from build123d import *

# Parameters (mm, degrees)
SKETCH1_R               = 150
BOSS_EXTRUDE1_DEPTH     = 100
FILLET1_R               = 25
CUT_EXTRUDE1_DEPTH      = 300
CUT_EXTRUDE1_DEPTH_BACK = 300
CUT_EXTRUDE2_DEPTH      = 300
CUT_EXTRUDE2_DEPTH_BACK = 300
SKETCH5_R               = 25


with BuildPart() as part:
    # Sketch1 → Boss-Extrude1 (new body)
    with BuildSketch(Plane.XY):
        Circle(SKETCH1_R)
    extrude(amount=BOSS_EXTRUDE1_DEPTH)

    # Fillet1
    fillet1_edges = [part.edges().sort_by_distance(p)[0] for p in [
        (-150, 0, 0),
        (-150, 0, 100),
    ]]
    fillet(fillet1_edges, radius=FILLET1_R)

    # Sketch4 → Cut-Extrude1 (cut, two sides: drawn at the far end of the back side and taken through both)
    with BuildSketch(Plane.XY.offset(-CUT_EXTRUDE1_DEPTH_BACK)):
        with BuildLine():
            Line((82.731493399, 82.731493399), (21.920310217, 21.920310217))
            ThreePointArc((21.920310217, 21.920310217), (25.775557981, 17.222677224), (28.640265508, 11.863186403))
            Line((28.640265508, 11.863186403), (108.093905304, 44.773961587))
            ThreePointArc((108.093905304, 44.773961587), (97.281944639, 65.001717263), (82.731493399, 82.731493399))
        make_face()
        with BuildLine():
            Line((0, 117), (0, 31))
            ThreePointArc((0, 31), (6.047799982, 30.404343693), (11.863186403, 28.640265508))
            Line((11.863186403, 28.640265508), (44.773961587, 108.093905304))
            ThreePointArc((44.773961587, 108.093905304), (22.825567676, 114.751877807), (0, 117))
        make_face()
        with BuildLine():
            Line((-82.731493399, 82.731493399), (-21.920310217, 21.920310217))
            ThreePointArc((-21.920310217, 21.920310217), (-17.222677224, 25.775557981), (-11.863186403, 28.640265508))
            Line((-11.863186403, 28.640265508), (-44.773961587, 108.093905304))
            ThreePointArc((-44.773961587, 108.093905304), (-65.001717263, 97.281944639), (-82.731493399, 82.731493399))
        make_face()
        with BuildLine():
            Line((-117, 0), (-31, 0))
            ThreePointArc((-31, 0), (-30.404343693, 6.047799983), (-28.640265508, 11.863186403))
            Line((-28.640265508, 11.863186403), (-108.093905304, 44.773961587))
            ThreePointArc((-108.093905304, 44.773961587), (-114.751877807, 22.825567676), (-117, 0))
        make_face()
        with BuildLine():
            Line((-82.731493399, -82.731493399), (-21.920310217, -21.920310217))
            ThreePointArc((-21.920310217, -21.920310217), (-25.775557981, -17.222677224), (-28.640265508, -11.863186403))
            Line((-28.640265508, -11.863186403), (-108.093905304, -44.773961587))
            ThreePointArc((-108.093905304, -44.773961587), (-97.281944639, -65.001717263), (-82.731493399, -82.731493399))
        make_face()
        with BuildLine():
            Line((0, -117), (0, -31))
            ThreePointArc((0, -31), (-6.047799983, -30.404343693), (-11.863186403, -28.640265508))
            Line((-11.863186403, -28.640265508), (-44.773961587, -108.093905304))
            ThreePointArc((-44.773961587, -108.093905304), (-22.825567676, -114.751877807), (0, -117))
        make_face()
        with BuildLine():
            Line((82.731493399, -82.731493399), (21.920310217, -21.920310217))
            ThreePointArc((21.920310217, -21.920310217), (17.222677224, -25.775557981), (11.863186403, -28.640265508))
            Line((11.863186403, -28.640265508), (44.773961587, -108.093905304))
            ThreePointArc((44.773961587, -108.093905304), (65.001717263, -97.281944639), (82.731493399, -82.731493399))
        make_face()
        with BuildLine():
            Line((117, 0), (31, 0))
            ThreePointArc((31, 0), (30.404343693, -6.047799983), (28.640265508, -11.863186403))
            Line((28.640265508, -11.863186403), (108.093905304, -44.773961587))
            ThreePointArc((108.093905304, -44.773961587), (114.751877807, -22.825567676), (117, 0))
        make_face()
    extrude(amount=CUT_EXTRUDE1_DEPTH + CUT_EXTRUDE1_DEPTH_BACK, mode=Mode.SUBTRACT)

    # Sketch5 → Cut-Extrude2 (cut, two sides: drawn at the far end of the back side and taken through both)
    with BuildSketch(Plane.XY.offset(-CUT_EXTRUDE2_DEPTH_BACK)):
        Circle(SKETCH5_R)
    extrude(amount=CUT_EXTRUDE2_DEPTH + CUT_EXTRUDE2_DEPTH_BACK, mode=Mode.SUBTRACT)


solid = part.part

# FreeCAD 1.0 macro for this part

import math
import FreeCAD as App
import Part
import Sketcher
from FreeCAD import Vector
Q = App.Units.Quantity


def edges_at(feature, points):
    """Names of the edges that pass closest to the given points."""
    edges = feature.Shape.Edges
    near = lambda p: min(range(len(edges)), key=lambda i: edges[i].distToShape(Part.Vertex(*p))[0])
    return sorted({f"Edge{near(p) + 1}" for p in points})

doc = App.newDocument("Part")
body = doc.addObject("PartDesign::Body", "Body")

# Sketch on XY plane
sketch1 = body.newObject("Sketcher::SketchObject", "Sketch")
sketch1.AttachmentSupport = (doc.getObject("XY_Plane"), [""])
sketch1.MapMode = "FlatFace"
sketch1.addGeometry(Part.Circle(Vector(0, 0, 0), Vector(0, 0, 1), 150), False)
sketch1.addConstraint([
    Sketcher.Constraint("Coincident", 0, 3, -1, 1),
    Sketcher.Constraint("Diameter", 0, 300.0),
])
pad1 = body.newObject("PartDesign::Pad", "Pad")
pad1.Profile = sketch1
pad1.Length = 100
doc.recompute()

fillet = body.newObject("PartDesign::Fillet", "Fillet")
fillet.Base = (pad1, edges_at(pad1, [(-150, 0, 0), (-150, 0, 100)]))
fillet.Radius = 25

# Sketch on XY plane
sketch2 = body.newObject("Sketcher::SketchObject", "Sketch001")
sketch2.AttachmentSupport = (doc.getObject("XY_Plane"), [""])
sketch2.MapMode = "FlatFace"
sketch2.addGeometry([
    Part.LineSegment(Vector(82.731493, 82.731493, 0), Vector(21.92031, 21.92031, 0)),  # 0
    Part.ArcOfCircle(Part.Circle(Vector(0, 0, 0), Vector(0, 0, 1), 31), math.radians(22.5), math.radians(45)),  # 1
    Part.LineSegment(Vector(28.640266, 11.863186, 0), Vector(108.093905, 44.773962, 0)),  # 2
    Part.ArcOfCircle(Part.Circle(Vector(0, 0, 0), Vector(0, 0, 1), 117), math.radians(22.5), math.radians(45)),  # 3
    Part.LineSegment(Vector(0, 117, 0), Vector(0, 31, 0)),  # 4
    Part.ArcOfCircle(Part.Circle(Vector(0, 0, 0), Vector(0, 0, 1), 31), math.radians(67.5), math.radians(90)),  # 5
    Part.LineSegment(Vector(11.863186, 28.640266, 0), Vector(44.773962, 108.093905, 0)),  # 6
    Part.ArcOfCircle(Part.Circle(Vector(0, 0, 0), Vector(0, 0, 1), 117), math.radians(67.5), math.radians(90)),  # 7
    Part.LineSegment(Vector(-82.731493, 82.731493, 0), Vector(-21.92031, 21.92031, 0)),  # 8
    Part.ArcOfCircle(Part.Circle(Vector(0, 0, 0), Vector(0, 0, 1), 31), math.radians(112.5), math.radians(135)),  # 9
    Part.LineSegment(Vector(-11.863186, 28.640266, 0), Vector(-44.773962, 108.093905, 0)),  # 10
    Part.ArcOfCircle(Part.Circle(Vector(0, 0, 0), Vector(0, 0, 1), 117), math.radians(112.5), math.radians(135)),  # 11
    Part.LineSegment(Vector(-117, 0, 0), Vector(-31, 0, 0)),  # 12
    Part.ArcOfCircle(Part.Circle(Vector(0, 0, 0), Vector(0, 0, 1), 31), math.radians(157.5), math.radians(180)),  # 13
    Part.LineSegment(Vector(-28.640266, 11.863186, 0), Vector(-108.093905, 44.773962, 0)),  # 14
    Part.ArcOfCircle(Part.Circle(Vector(0, 0, 0), Vector(0, 0, 1), 117), math.radians(157.5), math.radians(180)),  # 15
    Part.LineSegment(Vector(-82.731493, -82.731493, 0), Vector(-21.92031, -21.92031, 0)),  # 16
    Part.ArcOfCircle(Part.Circle(Vector(0, 0, 0), Vector(0, 0, 1), 31), math.radians(-157.5), math.radians(-135)),  # 17
    Part.LineSegment(Vector(-28.640266, -11.863186, 0), Vector(-108.093905, -44.773962, 0)),  # 18
    Part.ArcOfCircle(Part.Circle(Vector(0, 0, 0), Vector(0, 0, 1), 117), math.radians(-157.5), math.radians(-135)),  # 19
    Part.LineSegment(Vector(0, -117, 0), Vector(0, -31, 0)),  # 20
    Part.ArcOfCircle(Part.Circle(Vector(0, 0, 0), Vector(0, 0, 1), 31), math.radians(-112.5), math.radians(-90)),  # 21
    Part.LineSegment(Vector(-11.863186, -28.640266, 0), Vector(-44.773962, -108.093905, 0)),  # 22
    Part.ArcOfCircle(Part.Circle(Vector(0, 0, 0), Vector(0, 0, 1), 117), math.radians(-112.5), math.radians(-90)),  # 23
    Part.LineSegment(Vector(82.731493, -82.731493, 0), Vector(21.92031, -21.92031, 0)),  # 24
    Part.ArcOfCircle(Part.Circle(Vector(0, 0, 0), Vector(0, 0, 1), 31), math.radians(-67.5), math.radians(-45)),  # 25
    Part.LineSegment(Vector(11.863186, -28.640266, 0), Vector(44.773962, -108.093905, 0)),  # 26
    Part.ArcOfCircle(Part.Circle(Vector(0, 0, 0), Vector(0, 0, 1), 117), math.radians(-67.5), math.radians(-45)),  # 27
    Part.LineSegment(Vector(117, 0, 0), Vector(31, 0, 0)),  # 28
    Part.ArcOfCircle(Part.Circle(Vector(0, 0, 0), Vector(0, 0, 1), 31), math.radians(-22.5), math.radians(0)),  # 29
    Part.LineSegment(Vector(28.640266, -11.863186, 0), Vector(108.093905, -44.773962, 0)),  # 30
    Part.ArcOfCircle(Part.Circle(Vector(0, 0, 0), Vector(0, 0, 1), 117), math.radians(-22.5), math.radians(0)),  # 31
], False)
sketch2.addConstraint([
    Sketcher.Constraint("Coincident", 0, 2, 1, 2),
    Sketcher.Constraint("Coincident", 1, 1, 2, 1),
    Sketcher.Constraint("Coincident", 2, 2, 3, 1),
    Sketcher.Constraint("Coincident", 3, 2, 0, 1),
    Sketcher.Constraint("Coincident", 4, 2, 5, 2),
    Sketcher.Constraint("Coincident", 5, 1, 6, 1),
    Sketcher.Constraint("Coincident", 6, 2, 7, 1),
    Sketcher.Constraint("Coincident", 7, 2, 4, 1),
    Sketcher.Constraint("Coincident", 8, 2, 9, 2),
    Sketcher.Constraint("Coincident", 9, 1, 10, 1),
    Sketcher.Constraint("Coincident", 10, 2, 11, 1),
    Sketcher.Constraint("Coincident", 11, 2, 8, 1),
    Sketcher.Constraint("Coincident", 12, 2, 13, 2),
    Sketcher.Constraint("Coincident", 13, 1, 14, 1),
    Sketcher.Constraint("Coincident", 14, 2, 15, 1),
    Sketcher.Constraint("Coincident", 15, 2, 12, 1),
    Sketcher.Constraint("Coincident", 16, 2, 17, 2),
    Sketcher.Constraint("Coincident", 17, 1, 18, 1),
    Sketcher.Constraint("Coincident", 18, 2, 19, 1),
    Sketcher.Constraint("Coincident", 19, 2, 16, 1),
    Sketcher.Constraint("Coincident", 20, 2, 21, 2),
    Sketcher.Constraint("Coincident", 21, 1, 22, 1),
    Sketcher.Constraint("Coincident", 22, 2, 23, 1),
    Sketcher.Constraint("Coincident", 23, 2, 20, 1),
    Sketcher.Constraint("Coincident", 24, 2, 25, 2),
    Sketcher.Constraint("Coincident", 25, 1, 26, 1),
    Sketcher.Constraint("Coincident", 26, 2, 27, 1),
    Sketcher.Constraint("Coincident", 27, 2, 24, 1),
    Sketcher.Constraint("Coincident", 28, 2, 29, 2),
    Sketcher.Constraint("Coincident", 29, 1, 30, 1),
    Sketcher.Constraint("Coincident", 30, 2, 31, 1),
    Sketcher.Constraint("Coincident", 31, 2, 28, 1),
    Sketcher.Constraint("Vertical", 4),
    Sketcher.Constraint("Horizontal", 12),
    Sketcher.Constraint("Vertical", 20),
    Sketcher.Constraint("Horizontal", 28),
    Sketcher.Constraint("Coincident", 1, 3, -1, 1),
    Sketcher.Constraint("Coincident", 3, 3, -1, 1),
    Sketcher.Constraint("Coincident", 5, 3, -1, 1),
    Sketcher.Constraint("Coincident", 7, 3, -1, 1),
    Sketcher.Constraint("Coincident", 9, 3, -1, 1),
    Sketcher.Constraint("Coincident", 11, 3, -1, 1),
    Sketcher.Constraint("Coincident", 13, 3, -1, 1),
    Sketcher.Constraint("Coincident", 15, 3, -1, 1),
    Sketcher.Constraint("Coincident", 17, 3, -1, 1),
    Sketcher.Constraint("Coincident", 19, 3, -1, 1),
    Sketcher.Constraint("Coincident", 21, 3, -1, 1),
    Sketcher.Constraint("Coincident", 23, 3, -1, 1),
    Sketcher.Constraint("Coincident", 25, 3, -1, 1),
    Sketcher.Constraint("Coincident", 27, 3, -1, 1),
    Sketcher.Constraint("Coincident", 29, 3, -1, 1),
    Sketcher.Constraint("Coincident", 31, 3, -1, 1),
    Sketcher.Constraint("Equal", 1, 5),
    Sketcher.Constraint("Equal", 3, 7),
    Sketcher.Constraint("Equal", 5, 9),
    Sketcher.Constraint("Equal", 7, 11),
    Sketcher.Constraint("Equal", 9, 13),
    Sketcher.Constraint("Equal", 11, 15),
    Sketcher.Constraint("Equal", 13, 17),
    Sketcher.Constraint("Equal", 15, 19),
    Sketcher.Constraint("Equal", 17, 21),
    Sketcher.Constraint("Equal", 19, 23),
    Sketcher.Constraint("Equal", 21, 25),
    Sketcher.Constraint("Equal", 23, 27),
    Sketcher.Constraint("Equal", 25, 29),
    Sketcher.Constraint("Equal", 27, 31),
    Sketcher.Constraint("PointOnObject", 4, 2, -2),
    Sketcher.Constraint("PointOnObject", 12, 2, -1),
    Sketcher.Constraint("PointOnObject", 20, 2, -2),
    Sketcher.Constraint("PointOnObject", 28, 2, -1),
    Sketcher.Constraint("Perpendicular", 0, 8),
    Sketcher.Constraint("Perpendicular", 2, 10),
    Sketcher.Constraint("Perpendicular", 6, 14),
    Sketcher.Constraint("Perpendicular", 8, 16),
    Sketcher.Constraint("Perpendicular", 10, 18),
    Sketcher.Constraint("Perpendicular", 14, 22),
    Sketcher.Constraint("Perpendicular", 16, 24),
    Sketcher.Constraint("Perpendicular", 18, 26),
    Sketcher.Constraint("Perpendicular", 22, 30),
    Sketcher.Constraint("Horizontal", 0, 2, 8, 2),
    Sketcher.Constraint("Horizontal", 5, 1, 9, 1),
    Sketcher.Constraint("Horizontal", 6, 2, 10, 2),
    Sketcher.Constraint("Horizontal", 3, 2, 11, 2),
    Sketcher.Constraint("Horizontal", 1, 1, 13, 1),
    Sketcher.Constraint("Horizontal", 16, 2, 24, 2),
    Sketcher.Constraint("Horizontal", 21, 1, 25, 1),
    Sketcher.Constraint("Horizontal", 17, 1, 29, 1),
    Sketcher.Constraint("Vertical", 8, 2, 16, 2),
    Sketcher.Constraint("Vertical", 13, 1, 17, 1),
    Sketcher.Constraint("Vertical", 9, 1, 21, 1),
    Sketcher.Constraint("Radius", 1, 31.0),
    Sketcher.Constraint("Radius", 3, 117.0),
    Sketcher.Constraint("Angle", 2, Q("22.5 deg")),
    Sketcher.Constraint("DistanceX", -1, 1, 0, 2, 21.92031),
    Sketcher.Constraint("DistanceY", -1, 1, 2, 2, 44.773962),
    Sketcher.Constraint("DistanceX", -1, 1, 6, 2, 44.773962),
])
pocket1 = body.newObject("PartDesign::Pocket", "Pocket")
pocket1.Profile = sketch2
pocket1.Type = "ThroughAll"
pocket1.Midplane = True

# Sketch on XY plane
sketch3 = body.newObject("Sketcher::SketchObject", "Sketch002")
sketch3.AttachmentSupport = (doc.getObject("XY_Plane"), [""])
sketch3.MapMode = "FlatFace"
sketch3.addGeometry(Part.Circle(Vector(0, 0, 0), Vector(0, 0, 1), 25), False)
sketch3.addConstraint([
    Sketcher.Constraint("Coincident", 0, 3, -1, 1),
    Sketcher.Constraint("Diameter", 0, 50.0),
])
pocket2 = body.newObject("PartDesign::Pocket", "Pocket001")
pocket2.Profile = sketch3
pocket2.Type = "ThroughAll"
pocket2.Midplane = True

doc.recompute()
